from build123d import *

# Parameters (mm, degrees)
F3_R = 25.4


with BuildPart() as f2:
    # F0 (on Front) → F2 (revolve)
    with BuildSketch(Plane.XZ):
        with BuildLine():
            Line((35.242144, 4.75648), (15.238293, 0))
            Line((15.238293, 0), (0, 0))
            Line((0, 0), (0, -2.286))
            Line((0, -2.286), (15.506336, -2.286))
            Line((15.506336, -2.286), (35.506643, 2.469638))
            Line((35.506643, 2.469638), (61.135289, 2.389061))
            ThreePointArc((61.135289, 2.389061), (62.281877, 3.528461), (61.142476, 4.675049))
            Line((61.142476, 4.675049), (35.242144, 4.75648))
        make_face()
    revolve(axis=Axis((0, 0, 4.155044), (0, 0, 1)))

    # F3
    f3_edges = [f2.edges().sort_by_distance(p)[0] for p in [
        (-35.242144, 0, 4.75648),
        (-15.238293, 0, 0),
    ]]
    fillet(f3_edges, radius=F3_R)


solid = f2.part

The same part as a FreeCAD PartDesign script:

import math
import FreeCAD as App
import Part
import Sketcher
Q = App.Units.Quantity


def edges_at(feature, points):
    """Names of the edges that pass closest to the given points."""
    edges = feature.Shape.Edges
    near = lambda p: min(range(len(edges)), key=lambda i: edges[i].distToShape(Part.Vertex(*p))[0])
    return sorted({f"Edge{near(p) + 1}" for p in points})

doc = App.newDocument("Part")
body = doc.addObject("PartDesign::Body", "Body")

sketch1 = body.newObject("Sketcher::SketchObject", "Sketch")
sketch1.AttachmentSupport = (doc.getObject("XZ_Plane"), [""])
sketch1.MapMode = "FlatFace"
sketch1.addGeometry(Part.LineSegment(App.Vector(35.2, 4.8, 0), App.Vector(15.2, 0, 0)), False)
sketch1.addGeometry(Part.LineSegment(App.Vector(15.2, 0, 0), App.Vector(0, 0, 0)), False)
sketch1.addGeometry(Part.LineSegment(App.Vector(0, 0, 0), App.Vector(0, -2.3, 0)), False)
sketch1.addGeometry(Part.LineSegment(App.Vector(0, -2.3, 0), App.Vector(15.5, -2.3, 0)), False)
sketch1.addGeometry(Part.LineSegment(App.Vector(15.5, -2.3, 0), App.Vector(35.5, 2.5, 0)), False)
sketch1.addGeometry(Part.LineSegment(App.Vector(35.5, 2.5, 0), App.Vector(61.1, 2.4, 0)), False)
sketch1.addGeometry(Part.ArcOfCircle(Part.Circle(App.Vector(61.1, 3.5, 0), App.Vector(0, 0, 1), 1.1), math.radians(-90), math.radians(90)), False)
sketch1.addGeometry(Part.LineSegment(App.Vector(61.1, 4.7, 0), App.Vector(35.2, 4.8, 0)), False)
sketch1.addConstraint(Sketcher.Constraint("Coincident", 0, 2, 1, 1))
sketch1.addConstraint(Sketcher.Constraint("Coincident", 1, 2, 2, 1))
sketch1.addConstraint(Sketcher.Constraint("Coincident", 2, 2, 3, 1))
sketch1.addConstraint(Sketcher.Constraint("Coincident", 3, 2, 4, 1))
sketch1.addConstraint(Sketcher.Constraint("Coincident", 4, 2, 5, 1))
sketch1.addConstraint(Sketcher.Constraint("Tangent", 5, 2, 6, 1))
sketch1.addConstraint(Sketcher.Constraint("Tangent", 6, 2, 7, 1))
sketch1.addConstraint(Sketcher.Constraint("Coincident", 7, 2, 0, 1))
sketch1.addConstraint(Sketcher.Constraint("Horizontal", 1))
sketch1.addConstraint(Sketcher.Constraint("Vertical", 2))
sketch1.addConstraint(Sketcher.Constraint("Horizontal", 3))
sketch1.addConstraint(Sketcher.Constraint("Coincident", 1, 2, -1, 1))
sketch1.addConstraint(Sketcher.Constraint("Parallel", 0, 4))
sketch1.addConstraint(Sketcher.Constraint("Parallel", 5, 7))
sketch1.addConstraint(Sketcher.Constraint("Radius", 6, Q("0.045 in")))
sketch1.addConstraint(Sketcher.Constraint("DistanceY", 2, 2, 2, 1, Q("0.09 in")))
sketch1.addConstraint(Sketcher.Constraint("DistanceX", 7, 2, 4, 2, Q("0.264499 mm")))
sketch1.addConstraint(Sketcher.Constraint("Distance", 0, Q("20.56157 mm")))
sketch1.addConstraint(Sketcher.Constraint("Distance", 7, Q("25.90046 mm")))
sketch1.addConstraint(Sketcher.Constraint("DistanceX", 1, 2, 1, 1, Q("15.238293 mm")))
sketch1.addConstraint(Sketcher.Constraint("DistanceX", 3, 1, 3, 2, Q("15.506336 mm")))
sketch1.addConstraint(Sketcher.Constraint("DistanceY", -1, 1, 4, 2, Q("2.469638 mm")))
revolution = body.newObject("PartDesign::Revolution", "Revolution")
revolution.Profile = sketch1
revolution.ReferenceAxis = (sketch1, ["V_Axis"])
revolution.Angle = 360
doc.recompute()

fillet = body.newObject("PartDesign::Fillet", "Fillet")
fillet.Base = (revolution, edges_at(revolution, [(-35.242, 0, 4.756), (-15.238, 0, 0)]))
fillet.Radius = Q("1 in")

doc.recompute()
